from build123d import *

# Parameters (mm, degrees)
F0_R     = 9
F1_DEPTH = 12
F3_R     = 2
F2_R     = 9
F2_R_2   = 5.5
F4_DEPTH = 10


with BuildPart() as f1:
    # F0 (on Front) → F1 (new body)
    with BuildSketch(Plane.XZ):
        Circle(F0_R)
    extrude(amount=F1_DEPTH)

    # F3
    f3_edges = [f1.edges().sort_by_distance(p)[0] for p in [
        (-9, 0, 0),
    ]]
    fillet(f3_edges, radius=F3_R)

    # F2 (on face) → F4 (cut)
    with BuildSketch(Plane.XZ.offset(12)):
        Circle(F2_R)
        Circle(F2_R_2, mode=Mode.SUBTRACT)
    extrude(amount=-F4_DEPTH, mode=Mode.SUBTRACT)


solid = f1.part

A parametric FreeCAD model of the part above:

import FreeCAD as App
import Part
import Sketcher


def edges_at(feature, points):
    """Names of the edges that pass closest to the given points."""
    edges = feature.Shape.Edges
    near = lambda p: min(range(len(edges)), key=lambda i: edges[i].distToShape(Part.Vertex(*p))[0])
    return sorted({f"Edge{near(p) + 1}" for p in points})

doc = App.newDocument("Part")
body = doc.addObject("PartDesign::Body", "Body")

# Sketch on XZ plane
sketch1 = doc.addObject("Sketcher::SketchObject", "Sketch")
body.addObject(sketch1)
sketch1.AttachmentSupport = (doc.XZ_Plane, [""])
sketch1.MapMode = "FlatFace"
sketch1.addGeometry(Part.Circle(App.Vector(0, 0, 0), App.Vector(0, 0, 1), 9), False)
sketch1.addConstraint([
    Sketcher.Constraint("Coincident", 0, 3, -1, 1),
    Sketcher.Constraint("Diameter", 0, 18.0),
])
pad1 = doc.addObject("PartDesign::Pad", "Pad")
body.addObject(pad1)
pad1.Profile = sketch1
pad1.Length = 12
doc.recompute()

fillet = doc.addObject("PartDesign::Fillet", "Fillet")
body.addObject(fillet)
fillet.Base = (pad1, edges_at(pad1, [(-9, 0, 0)]))
fillet.Radius = 2

# Sketch on XZ plane
sketch2 = doc.addObject("Sketcher::SketchObject", "Sketch001")
body.addObject(sketch2)
sketch2.AttachmentSupport = (doc.XZ_Plane, [""])
sketch2.MapMode = "FlatFace"
sketch2.AttachmentOffset = App.Placement(App.Vector(0, 0, 12), App.Rotation())
sketch2.addGeometry([
    Part.Circle(App.Vector(0, 0, 0), App.Vector(0, 0, 1), 9),
    Part.Circle(App.Vector(0, 0, 0), App.Vector(0, 0, 1), 6),
], False)
sketch2.addConstraint([
    Sketcher.Constraint("Coincident", 0, 3, -1, 1),
    Sketcher.Constraint("Coincident", 1, 3, -1, 1),
    Sketcher.Constraint("Diameter", 0, 18.0),
    Sketcher.Constraint("Diameter", 1, 11.0),
])
pocket1 = doc.addObject("PartDesign::Pocket", "Pocket")
body.addObject(pocket1)
pocket1.Profile = sketch2
pocket1.Length = 10

doc.recompute()
